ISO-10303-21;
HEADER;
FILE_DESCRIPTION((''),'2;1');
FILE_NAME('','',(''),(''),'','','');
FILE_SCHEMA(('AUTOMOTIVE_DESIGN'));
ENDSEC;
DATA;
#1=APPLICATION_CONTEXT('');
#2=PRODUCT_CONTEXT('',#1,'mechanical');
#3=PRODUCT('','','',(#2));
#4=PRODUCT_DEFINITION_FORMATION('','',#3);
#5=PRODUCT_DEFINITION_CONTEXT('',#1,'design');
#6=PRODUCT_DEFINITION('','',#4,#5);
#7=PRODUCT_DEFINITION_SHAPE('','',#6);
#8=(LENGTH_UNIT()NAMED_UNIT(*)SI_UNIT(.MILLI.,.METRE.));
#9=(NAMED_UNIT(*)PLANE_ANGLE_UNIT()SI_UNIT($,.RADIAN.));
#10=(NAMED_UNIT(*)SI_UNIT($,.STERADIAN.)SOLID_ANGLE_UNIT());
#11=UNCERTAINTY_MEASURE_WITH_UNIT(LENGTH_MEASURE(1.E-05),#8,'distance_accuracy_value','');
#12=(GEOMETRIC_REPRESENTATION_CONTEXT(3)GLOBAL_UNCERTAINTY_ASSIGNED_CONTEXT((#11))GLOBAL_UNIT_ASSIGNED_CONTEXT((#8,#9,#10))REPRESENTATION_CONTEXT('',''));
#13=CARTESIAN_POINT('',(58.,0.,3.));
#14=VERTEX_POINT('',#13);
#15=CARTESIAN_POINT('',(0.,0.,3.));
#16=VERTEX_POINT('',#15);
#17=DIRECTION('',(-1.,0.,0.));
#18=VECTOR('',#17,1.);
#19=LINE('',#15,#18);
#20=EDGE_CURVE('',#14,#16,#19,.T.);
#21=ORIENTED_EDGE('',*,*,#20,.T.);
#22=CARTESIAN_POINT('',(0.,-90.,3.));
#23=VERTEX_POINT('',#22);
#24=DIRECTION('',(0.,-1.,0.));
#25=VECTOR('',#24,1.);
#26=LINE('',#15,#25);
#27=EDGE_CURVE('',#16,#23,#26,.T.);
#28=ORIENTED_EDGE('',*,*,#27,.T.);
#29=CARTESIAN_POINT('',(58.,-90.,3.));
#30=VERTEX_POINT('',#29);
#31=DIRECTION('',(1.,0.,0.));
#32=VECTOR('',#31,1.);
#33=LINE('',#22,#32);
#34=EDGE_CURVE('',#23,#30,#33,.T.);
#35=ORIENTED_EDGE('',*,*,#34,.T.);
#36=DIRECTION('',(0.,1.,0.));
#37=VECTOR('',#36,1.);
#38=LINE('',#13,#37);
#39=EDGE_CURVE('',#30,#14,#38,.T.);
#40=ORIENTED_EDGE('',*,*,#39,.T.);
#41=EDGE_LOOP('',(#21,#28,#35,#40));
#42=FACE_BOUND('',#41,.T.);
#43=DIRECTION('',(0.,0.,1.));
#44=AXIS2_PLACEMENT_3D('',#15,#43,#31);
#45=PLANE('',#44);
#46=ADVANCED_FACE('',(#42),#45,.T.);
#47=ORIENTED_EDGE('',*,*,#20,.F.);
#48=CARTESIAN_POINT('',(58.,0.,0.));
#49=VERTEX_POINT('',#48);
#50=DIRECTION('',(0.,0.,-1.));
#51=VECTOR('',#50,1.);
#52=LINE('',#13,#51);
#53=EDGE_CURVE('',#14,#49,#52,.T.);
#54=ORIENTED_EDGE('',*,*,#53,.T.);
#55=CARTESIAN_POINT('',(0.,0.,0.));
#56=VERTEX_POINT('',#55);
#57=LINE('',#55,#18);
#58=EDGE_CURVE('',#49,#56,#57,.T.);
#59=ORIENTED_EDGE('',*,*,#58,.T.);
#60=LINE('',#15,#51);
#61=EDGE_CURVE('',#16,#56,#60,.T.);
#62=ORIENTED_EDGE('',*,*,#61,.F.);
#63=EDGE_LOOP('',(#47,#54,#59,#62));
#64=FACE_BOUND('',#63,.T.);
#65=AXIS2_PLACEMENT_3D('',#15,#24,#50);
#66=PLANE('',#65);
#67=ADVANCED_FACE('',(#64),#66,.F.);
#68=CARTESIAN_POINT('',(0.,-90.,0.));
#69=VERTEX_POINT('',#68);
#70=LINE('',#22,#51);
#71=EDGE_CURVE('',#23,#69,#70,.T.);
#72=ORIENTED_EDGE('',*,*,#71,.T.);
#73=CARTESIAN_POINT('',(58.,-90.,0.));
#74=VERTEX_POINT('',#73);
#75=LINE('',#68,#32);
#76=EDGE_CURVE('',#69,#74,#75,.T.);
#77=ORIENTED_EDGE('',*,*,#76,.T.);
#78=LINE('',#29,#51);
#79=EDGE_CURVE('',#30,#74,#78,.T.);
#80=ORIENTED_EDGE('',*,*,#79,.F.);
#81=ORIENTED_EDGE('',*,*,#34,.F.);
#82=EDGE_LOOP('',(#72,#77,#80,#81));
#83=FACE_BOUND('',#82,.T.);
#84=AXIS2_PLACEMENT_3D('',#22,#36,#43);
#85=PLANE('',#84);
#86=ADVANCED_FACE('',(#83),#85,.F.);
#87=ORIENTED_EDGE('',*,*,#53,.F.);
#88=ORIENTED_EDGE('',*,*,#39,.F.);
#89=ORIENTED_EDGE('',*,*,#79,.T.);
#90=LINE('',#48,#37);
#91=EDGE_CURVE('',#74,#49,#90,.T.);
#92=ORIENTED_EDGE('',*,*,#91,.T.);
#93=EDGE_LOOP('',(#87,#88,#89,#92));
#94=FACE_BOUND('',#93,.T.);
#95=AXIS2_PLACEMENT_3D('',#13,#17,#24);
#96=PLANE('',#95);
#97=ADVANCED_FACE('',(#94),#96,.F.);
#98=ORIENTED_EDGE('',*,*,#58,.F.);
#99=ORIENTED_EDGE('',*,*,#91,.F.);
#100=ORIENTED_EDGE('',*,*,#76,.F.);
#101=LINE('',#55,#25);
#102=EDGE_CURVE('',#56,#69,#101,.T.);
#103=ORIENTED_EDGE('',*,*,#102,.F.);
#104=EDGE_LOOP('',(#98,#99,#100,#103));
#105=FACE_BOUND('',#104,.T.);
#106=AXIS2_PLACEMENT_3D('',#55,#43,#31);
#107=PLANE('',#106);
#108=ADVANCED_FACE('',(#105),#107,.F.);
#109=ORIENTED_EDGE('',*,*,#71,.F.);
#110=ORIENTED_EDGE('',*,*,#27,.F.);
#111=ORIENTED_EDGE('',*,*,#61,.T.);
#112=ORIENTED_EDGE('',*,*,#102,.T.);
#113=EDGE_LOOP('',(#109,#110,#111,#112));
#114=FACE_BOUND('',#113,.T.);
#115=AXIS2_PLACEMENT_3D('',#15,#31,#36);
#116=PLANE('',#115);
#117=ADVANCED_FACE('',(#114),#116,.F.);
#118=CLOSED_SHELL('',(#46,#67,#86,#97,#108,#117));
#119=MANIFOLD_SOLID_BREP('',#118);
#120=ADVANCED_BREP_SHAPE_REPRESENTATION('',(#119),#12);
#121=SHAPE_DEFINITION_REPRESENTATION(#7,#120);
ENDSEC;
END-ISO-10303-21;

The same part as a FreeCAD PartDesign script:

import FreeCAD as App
import Part
import Sketcher
from FreeCAD import Vector

doc = App.newDocument("Part")
body = doc.addObject("PartDesign::Body", "Body")

sketch1 = doc.addObject("Sketcher::SketchObject", "Sketch")
body.addObject(sketch1)
sketch1.AttachmentSupport = (doc.XY_Plane, [""])
sketch1.MapMode = "FlatFace"
sketch1.addGeometry(Part.LineSegment(Vector(0, 0, 0), Vector(0, -90, 0)), False)
sketch1.addGeometry(Part.LineSegment(Vector(0, -90, 0), Vector(58, -90, 0)), False)
sketch1.addGeometry(Part.LineSegment(Vector(58, -90, 0), Vector(58, 0, 0)), False)
sketch1.addGeometry(Part.LineSegment(Vector(58, 0, 0), Vector(0, 0, 0)), False)
sketch1.addConstraint(Sketcher.Constraint("Coincident", 0, 2, 1, 1))
sketch1.addConstraint(Sketcher.Constraint("Coincident", 1, 2, 2, 1))
sketch1.addConstraint(Sketcher.Constraint("Coincident", 2, 2, 3, 1))
sketch1.addConstraint(Sketcher.Constraint("Coincident", 3, 2, 0, 1))
sketch1.addConstraint(Sketcher.Constraint("Vertical", 0))
sketch1.addConstraint(Sketcher.Constraint("Horizontal", 1))
sketch1.addConstraint(Sketcher.Constraint("Vertical", 2))
sketch1.addConstraint(Sketcher.Constraint("Horizontal", 3))
sketch1.addConstraint(Sketcher.Constraint("Coincident", 3, 2, -1, 1))
sketch1.addConstraint(Sketcher.Constraint("DistanceX", 1, 1, 1, 2, 58.0))
sketch1.addConstraint(Sketcher.Constraint("DistanceY", 0, 2, 0, 1, 90.0))
pad1 = doc.addObject("PartDesign::Pad", "Pad")
body.addObject(pad1)
pad1.Profile = sketch1
pad1.Length = 3

doc.recompute()
